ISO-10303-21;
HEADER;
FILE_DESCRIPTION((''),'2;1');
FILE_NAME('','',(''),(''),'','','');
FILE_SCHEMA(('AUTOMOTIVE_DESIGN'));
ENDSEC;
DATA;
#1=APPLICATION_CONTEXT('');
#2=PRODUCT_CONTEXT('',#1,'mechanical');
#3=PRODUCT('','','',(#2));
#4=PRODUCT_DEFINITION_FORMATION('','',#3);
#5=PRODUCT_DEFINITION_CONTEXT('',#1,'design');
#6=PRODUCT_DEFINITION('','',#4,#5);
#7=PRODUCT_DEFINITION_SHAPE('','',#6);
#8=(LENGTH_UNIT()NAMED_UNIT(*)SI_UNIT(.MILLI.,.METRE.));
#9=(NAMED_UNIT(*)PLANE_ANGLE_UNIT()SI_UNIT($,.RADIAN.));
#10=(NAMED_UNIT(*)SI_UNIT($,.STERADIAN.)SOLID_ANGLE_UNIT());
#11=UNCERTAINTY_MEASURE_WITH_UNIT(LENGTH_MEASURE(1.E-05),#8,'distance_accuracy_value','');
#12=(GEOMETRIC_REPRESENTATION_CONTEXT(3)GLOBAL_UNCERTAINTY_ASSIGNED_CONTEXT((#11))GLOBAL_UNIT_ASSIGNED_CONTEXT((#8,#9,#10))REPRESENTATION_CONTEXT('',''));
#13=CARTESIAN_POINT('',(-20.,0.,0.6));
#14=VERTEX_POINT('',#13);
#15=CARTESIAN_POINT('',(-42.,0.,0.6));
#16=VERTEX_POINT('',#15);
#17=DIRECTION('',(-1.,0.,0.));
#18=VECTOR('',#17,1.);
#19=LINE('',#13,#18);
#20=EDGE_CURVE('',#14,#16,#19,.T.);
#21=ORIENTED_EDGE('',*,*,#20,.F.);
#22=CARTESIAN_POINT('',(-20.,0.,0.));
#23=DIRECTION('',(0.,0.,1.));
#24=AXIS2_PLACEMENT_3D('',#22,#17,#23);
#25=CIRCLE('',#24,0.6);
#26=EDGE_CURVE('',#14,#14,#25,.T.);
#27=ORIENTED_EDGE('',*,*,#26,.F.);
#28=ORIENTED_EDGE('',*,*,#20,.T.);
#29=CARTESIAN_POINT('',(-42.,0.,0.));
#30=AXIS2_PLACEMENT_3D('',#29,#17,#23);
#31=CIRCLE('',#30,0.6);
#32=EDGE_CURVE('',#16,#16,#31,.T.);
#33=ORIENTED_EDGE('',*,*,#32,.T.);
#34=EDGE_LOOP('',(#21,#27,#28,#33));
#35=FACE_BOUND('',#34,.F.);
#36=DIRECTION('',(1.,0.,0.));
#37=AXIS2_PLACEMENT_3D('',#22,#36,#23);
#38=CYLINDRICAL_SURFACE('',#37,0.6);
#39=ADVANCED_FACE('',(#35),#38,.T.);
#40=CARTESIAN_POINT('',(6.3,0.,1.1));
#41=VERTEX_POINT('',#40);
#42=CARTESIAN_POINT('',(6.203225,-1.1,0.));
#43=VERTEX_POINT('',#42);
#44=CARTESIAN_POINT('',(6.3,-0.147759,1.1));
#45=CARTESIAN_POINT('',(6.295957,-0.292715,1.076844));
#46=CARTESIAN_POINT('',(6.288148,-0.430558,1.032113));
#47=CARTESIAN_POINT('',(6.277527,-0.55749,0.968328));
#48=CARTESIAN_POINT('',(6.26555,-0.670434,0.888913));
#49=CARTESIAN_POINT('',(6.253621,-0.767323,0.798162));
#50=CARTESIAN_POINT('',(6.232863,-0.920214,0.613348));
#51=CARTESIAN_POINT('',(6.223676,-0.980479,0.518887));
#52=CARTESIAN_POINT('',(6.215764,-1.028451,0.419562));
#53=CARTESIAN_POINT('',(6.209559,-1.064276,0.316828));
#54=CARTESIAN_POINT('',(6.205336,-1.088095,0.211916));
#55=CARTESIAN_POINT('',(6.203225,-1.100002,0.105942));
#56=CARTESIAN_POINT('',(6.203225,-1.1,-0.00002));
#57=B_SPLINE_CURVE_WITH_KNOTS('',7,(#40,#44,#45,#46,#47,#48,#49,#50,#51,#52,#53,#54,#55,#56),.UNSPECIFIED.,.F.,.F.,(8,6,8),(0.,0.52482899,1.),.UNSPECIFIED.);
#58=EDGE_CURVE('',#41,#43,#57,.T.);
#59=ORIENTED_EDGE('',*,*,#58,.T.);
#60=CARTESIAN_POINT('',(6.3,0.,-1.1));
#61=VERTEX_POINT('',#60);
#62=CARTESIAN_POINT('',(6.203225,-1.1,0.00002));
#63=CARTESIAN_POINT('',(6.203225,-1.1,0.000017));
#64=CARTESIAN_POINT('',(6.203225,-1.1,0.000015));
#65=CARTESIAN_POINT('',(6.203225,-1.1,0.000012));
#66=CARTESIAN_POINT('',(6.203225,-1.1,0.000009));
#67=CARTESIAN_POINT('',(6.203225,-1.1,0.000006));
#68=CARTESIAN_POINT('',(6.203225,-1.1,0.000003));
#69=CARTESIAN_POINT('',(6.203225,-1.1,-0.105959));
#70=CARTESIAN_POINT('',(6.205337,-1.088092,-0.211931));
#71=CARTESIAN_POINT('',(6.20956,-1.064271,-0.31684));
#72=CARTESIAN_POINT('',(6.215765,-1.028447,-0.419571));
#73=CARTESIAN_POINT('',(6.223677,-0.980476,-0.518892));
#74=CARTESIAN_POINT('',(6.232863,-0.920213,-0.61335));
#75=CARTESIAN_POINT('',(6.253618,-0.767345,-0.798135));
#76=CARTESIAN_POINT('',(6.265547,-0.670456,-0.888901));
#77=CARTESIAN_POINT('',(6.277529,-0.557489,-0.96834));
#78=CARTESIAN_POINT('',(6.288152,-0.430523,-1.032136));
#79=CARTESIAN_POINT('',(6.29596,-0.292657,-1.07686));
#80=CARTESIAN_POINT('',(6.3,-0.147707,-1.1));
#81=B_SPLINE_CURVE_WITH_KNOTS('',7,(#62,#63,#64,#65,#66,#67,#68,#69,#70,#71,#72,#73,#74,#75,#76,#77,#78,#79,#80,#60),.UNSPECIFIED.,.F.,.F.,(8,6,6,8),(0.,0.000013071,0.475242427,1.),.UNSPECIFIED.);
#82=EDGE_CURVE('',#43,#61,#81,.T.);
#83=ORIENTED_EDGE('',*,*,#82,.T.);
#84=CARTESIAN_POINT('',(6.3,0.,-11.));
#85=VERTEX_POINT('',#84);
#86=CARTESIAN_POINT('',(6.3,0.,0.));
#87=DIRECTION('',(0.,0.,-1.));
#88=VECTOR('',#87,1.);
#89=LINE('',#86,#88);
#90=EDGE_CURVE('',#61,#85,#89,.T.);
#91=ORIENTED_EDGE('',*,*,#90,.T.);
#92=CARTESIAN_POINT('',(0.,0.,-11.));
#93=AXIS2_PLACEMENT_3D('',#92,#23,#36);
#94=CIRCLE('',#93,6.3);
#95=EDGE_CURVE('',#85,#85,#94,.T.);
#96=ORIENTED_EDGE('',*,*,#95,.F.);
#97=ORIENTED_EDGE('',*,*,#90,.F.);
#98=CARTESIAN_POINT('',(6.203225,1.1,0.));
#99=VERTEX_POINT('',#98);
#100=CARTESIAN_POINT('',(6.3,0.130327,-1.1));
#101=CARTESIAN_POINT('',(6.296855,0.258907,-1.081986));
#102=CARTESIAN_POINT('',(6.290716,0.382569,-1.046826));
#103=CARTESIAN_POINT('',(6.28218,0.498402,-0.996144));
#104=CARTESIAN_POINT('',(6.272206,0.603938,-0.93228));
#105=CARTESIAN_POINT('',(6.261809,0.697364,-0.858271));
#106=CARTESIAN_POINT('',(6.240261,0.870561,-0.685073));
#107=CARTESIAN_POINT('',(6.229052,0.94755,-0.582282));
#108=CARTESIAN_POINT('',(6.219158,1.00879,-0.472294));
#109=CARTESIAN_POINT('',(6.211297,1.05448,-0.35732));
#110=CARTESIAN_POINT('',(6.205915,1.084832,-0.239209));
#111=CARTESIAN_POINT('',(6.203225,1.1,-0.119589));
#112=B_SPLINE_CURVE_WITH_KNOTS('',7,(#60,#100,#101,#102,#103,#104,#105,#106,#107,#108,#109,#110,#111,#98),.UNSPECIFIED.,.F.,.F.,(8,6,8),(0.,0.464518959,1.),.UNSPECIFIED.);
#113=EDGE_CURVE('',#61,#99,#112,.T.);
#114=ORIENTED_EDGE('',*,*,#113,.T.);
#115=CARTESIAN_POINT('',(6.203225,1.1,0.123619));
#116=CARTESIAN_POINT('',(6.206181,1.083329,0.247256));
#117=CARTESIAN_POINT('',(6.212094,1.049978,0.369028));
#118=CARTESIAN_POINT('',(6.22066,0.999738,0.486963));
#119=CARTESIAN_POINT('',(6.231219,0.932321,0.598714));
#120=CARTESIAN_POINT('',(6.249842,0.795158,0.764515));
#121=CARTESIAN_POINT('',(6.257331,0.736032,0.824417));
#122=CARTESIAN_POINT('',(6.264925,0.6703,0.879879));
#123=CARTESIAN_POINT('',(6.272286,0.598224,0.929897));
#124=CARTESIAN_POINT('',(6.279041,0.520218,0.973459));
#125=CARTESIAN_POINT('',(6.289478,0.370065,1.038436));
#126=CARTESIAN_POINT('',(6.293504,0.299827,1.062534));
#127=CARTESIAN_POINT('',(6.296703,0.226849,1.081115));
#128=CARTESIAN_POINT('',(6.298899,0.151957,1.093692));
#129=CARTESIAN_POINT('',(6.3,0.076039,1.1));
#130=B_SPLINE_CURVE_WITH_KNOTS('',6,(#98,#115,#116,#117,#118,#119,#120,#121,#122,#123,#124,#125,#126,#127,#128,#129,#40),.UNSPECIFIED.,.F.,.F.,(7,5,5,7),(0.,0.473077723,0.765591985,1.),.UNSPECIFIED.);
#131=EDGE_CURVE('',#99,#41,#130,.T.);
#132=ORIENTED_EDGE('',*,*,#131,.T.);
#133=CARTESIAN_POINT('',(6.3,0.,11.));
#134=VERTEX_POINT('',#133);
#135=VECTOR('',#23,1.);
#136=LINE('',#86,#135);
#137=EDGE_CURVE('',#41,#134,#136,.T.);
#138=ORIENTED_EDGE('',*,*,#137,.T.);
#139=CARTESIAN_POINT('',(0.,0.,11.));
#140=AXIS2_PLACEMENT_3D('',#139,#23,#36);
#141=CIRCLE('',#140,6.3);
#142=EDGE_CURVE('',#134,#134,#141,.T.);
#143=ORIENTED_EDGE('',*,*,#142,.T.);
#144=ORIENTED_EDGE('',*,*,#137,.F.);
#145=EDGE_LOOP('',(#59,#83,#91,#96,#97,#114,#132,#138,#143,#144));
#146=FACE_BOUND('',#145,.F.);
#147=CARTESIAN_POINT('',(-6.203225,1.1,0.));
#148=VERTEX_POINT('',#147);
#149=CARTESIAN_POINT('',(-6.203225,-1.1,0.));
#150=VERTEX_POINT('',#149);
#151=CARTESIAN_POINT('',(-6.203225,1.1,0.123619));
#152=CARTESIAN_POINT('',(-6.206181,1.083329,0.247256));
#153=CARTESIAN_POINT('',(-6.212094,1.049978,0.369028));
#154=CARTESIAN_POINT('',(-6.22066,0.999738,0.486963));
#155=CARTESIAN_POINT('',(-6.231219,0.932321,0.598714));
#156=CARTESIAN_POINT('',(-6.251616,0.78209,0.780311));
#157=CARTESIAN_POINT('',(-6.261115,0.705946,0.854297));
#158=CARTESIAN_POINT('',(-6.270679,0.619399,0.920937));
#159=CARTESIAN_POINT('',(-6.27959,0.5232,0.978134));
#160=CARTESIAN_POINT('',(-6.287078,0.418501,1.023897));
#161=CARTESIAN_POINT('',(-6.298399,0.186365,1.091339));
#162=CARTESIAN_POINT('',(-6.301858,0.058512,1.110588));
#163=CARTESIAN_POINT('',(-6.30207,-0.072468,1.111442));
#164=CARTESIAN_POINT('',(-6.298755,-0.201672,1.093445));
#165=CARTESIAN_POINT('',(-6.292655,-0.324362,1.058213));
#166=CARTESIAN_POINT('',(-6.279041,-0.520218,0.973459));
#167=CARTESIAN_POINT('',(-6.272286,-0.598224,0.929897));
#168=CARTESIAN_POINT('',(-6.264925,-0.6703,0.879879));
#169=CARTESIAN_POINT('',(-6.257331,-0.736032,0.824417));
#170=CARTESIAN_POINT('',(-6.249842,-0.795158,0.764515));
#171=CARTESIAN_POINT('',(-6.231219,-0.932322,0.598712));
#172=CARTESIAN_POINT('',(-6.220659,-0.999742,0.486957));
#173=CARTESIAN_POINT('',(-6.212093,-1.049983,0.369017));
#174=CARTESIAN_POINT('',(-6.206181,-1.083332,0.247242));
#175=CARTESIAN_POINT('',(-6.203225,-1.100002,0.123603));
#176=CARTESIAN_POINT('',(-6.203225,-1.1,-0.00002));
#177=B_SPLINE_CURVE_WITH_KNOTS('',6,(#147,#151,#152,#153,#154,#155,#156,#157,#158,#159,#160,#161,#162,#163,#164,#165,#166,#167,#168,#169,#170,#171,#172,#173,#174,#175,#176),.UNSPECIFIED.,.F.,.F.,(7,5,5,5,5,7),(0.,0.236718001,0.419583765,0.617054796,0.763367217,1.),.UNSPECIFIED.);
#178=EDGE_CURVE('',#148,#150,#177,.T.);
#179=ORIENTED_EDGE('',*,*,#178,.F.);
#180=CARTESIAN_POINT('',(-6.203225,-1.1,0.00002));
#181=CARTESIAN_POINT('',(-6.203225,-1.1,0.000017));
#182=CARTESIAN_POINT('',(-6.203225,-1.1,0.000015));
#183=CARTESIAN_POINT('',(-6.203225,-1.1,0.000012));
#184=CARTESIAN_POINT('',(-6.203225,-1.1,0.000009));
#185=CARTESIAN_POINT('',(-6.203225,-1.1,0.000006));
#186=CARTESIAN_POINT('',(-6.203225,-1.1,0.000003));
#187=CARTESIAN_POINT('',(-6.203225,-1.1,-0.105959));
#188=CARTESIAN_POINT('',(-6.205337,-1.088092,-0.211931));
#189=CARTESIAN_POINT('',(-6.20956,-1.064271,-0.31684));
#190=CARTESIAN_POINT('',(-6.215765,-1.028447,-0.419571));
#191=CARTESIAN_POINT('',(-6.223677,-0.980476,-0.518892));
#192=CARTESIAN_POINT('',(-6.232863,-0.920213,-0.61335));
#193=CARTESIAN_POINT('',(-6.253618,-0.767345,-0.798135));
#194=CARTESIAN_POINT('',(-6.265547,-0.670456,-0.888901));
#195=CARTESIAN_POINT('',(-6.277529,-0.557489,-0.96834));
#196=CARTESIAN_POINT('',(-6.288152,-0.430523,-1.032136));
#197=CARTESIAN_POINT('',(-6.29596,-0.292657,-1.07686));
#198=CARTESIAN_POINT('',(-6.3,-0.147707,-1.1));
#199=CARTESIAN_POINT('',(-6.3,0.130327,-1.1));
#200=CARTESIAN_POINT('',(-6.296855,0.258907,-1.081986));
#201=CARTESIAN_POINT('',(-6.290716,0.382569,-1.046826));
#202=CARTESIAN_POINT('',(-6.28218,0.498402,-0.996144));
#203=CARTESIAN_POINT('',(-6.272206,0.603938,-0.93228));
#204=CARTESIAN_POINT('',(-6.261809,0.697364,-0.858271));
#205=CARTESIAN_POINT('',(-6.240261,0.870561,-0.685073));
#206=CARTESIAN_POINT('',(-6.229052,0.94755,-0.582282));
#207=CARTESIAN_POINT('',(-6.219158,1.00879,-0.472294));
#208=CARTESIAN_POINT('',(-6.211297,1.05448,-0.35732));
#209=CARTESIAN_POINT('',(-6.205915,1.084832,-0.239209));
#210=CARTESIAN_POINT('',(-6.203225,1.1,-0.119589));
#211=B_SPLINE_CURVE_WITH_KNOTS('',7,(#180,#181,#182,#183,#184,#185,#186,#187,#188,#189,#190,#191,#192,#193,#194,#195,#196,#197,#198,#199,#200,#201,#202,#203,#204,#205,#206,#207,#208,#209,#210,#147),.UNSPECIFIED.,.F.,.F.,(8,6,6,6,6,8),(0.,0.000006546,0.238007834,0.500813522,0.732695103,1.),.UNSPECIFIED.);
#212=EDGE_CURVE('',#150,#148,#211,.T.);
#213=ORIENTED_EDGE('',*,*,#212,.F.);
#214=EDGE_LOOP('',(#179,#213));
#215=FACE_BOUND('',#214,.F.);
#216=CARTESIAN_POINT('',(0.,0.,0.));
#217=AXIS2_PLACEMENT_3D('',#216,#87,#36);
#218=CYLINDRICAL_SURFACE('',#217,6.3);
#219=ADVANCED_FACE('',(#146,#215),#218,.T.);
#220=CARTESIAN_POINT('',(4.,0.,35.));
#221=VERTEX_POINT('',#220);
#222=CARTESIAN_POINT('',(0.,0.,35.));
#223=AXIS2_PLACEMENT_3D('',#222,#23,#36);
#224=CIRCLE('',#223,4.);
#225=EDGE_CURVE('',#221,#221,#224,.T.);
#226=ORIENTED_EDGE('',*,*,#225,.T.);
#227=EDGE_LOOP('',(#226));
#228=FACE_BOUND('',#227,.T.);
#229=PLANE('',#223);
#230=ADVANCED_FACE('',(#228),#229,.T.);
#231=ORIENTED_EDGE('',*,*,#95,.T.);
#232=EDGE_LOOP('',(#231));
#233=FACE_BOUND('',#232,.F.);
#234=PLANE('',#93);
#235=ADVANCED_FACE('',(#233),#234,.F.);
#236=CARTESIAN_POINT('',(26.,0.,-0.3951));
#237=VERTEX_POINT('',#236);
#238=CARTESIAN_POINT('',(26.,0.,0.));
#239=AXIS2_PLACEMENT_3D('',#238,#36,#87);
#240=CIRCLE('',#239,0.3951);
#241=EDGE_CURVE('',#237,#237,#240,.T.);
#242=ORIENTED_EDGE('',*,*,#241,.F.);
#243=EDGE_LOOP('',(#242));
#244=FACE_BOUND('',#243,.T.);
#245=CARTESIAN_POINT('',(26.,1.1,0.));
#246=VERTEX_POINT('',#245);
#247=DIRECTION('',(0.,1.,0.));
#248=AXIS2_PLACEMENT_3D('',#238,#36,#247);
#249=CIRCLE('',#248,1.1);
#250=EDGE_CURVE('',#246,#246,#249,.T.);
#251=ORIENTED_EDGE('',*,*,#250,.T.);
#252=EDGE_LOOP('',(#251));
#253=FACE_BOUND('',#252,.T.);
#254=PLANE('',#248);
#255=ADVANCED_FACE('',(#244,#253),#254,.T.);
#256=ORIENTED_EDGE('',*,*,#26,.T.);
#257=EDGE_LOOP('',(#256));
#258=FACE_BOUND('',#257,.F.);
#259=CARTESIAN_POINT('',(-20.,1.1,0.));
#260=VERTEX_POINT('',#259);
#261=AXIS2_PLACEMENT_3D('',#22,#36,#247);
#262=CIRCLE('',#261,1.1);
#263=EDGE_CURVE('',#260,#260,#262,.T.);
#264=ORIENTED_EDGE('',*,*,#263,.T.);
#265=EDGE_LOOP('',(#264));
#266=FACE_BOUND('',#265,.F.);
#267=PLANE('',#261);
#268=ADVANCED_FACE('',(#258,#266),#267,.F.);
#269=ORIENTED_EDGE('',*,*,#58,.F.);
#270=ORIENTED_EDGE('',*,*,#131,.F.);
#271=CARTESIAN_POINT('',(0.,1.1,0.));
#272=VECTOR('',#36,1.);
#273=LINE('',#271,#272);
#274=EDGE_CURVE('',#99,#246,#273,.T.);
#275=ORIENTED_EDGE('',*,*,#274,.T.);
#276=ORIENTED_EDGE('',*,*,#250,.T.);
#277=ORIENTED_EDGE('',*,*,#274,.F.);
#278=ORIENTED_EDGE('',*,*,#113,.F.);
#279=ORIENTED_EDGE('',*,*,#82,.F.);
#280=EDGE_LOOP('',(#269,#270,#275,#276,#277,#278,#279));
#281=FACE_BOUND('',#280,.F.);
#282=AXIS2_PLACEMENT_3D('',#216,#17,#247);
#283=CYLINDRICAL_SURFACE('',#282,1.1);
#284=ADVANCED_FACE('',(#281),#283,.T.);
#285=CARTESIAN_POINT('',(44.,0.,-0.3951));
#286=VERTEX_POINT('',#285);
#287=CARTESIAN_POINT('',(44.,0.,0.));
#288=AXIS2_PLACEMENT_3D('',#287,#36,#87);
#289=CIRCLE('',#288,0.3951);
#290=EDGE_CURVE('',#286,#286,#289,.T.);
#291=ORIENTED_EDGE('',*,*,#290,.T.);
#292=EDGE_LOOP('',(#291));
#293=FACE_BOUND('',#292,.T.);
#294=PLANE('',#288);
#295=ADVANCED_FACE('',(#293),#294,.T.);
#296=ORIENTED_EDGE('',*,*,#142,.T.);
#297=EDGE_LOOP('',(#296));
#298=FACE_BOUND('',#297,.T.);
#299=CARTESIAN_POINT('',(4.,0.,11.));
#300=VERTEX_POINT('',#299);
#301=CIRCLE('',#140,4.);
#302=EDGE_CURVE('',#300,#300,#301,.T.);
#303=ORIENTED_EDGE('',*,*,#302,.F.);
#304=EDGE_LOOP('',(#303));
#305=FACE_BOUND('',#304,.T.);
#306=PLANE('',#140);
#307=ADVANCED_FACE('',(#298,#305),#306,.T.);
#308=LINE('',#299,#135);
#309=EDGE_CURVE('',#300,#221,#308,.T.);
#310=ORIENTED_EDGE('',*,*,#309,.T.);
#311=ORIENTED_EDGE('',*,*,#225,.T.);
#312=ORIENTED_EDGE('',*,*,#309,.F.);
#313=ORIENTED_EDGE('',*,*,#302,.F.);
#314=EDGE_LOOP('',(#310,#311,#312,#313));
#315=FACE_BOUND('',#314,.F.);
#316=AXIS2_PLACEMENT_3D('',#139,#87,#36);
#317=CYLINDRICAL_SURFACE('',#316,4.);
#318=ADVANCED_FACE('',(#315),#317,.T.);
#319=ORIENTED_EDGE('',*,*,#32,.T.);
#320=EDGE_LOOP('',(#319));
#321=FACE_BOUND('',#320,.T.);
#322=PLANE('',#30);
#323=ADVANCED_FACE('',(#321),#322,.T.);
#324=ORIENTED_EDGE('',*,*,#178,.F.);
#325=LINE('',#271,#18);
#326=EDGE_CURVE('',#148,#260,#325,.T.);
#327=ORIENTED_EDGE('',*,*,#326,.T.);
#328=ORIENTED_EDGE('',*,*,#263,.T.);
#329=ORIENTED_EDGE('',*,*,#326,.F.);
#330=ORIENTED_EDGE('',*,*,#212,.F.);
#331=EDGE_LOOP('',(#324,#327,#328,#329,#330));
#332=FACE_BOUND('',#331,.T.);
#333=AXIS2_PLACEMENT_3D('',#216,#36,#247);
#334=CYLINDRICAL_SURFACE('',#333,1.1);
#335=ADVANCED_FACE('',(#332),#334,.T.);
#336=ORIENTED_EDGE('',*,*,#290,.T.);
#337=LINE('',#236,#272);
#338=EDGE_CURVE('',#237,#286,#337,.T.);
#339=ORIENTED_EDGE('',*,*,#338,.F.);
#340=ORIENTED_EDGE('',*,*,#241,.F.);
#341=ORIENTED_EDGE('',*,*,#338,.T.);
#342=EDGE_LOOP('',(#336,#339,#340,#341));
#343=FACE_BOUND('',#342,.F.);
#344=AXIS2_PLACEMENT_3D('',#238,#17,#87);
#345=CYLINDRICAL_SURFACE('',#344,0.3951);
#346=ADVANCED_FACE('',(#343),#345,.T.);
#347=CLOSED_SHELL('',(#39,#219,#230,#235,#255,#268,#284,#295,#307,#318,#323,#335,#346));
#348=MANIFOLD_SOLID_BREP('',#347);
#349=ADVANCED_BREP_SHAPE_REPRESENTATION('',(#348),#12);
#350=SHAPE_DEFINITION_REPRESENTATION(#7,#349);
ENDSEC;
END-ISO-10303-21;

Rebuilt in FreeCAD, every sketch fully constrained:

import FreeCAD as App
import Part
import Sketcher
Q = App.Units.Quantity

doc = App.newDocument("Part")
params = doc.addObject("Spreadsheet::Sheet", "Params")
for row, (alias, value) in enumerate([
    ("sketch1_diameter", "12.6 mm"),
    ("pad1_length", "22 mm"),
    ("sketch2_diameter", "8 mm"),
    ("pad2_length", "24 mm"),
    ("sketch3_diameter", "2.2 mm"),
    ("pad3_length", "26 mm"),
    ("pad3_length2", "20 mm"),
    ("pad4_length", "18 mm"),
    ("sketch5_diameter", "1.2 mm"),
    ("pad5_length", "22 mm"),
], start=1):
    params.set(f"A{row}", alias)
    params.set(f"B{row}", "=" + value)
    params.setAlias(f"B{row}", alias)

body = doc.addObject("PartDesign::Body", "Body")

sketch1 = doc.addObject("Sketcher::SketchObject", "Sketch")
body.addObject(sketch1)
sketch1.AttachmentSupport = (doc.XY_Plane, [""])
sketch1.MapMode = "FlatFace"
sketch1.addGeometry(Part.Circle(App.Vector(0, 0, 0), App.Vector(0, 0, 1), 6), False)
sketch1.addConstraint([
    Sketcher.Constraint("Coincident", 0, 3, -1, 1),
    Sketcher.Constraint("Diameter", 0, Q("12.6 mm")),
])
sketch1.setExpression("Constraints[1]", "Params.sketch1_diameter")
pad1 = doc.addObject("PartDesign::Pad", "Pad")
body.addObject(pad1)
pad1.Profile = sketch1
pad1.setExpression("Length", "Params.pad1_length")
pad1.Midplane = True

sketch2 = doc.addObject("Sketcher::SketchObject", "Sketch001")
body.addObject(sketch2)
sketch2.AttachmentSupport = (doc.XY_Plane, [""])
sketch2.MapMode = "FlatFace"
sketch2.AttachmentOffset = App.Placement(App.Vector(0, 0, 11), App.Rotation())
sketch2.addGeometry(Part.Circle(App.Vector(0, 0, 0), App.Vector(0, 0, 1), 4), False)
sketch2.addConstraint([
    Sketcher.Constraint("Coincident", 0, 3, -1, 1),
    Sketcher.Constraint("Diameter", 0, Q("8 mm")),
])
sketch2.setExpression("Constraints[1]", "Params.sketch2_diameter")
pad2 = doc.addObject("PartDesign::Pad", "Pad001")
body.addObject(pad2)
pad2.Profile = sketch2
pad2.setExpression("Length", "Params.pad2_length")

sketch3 = doc.addObject("Sketcher::SketchObject", "Sketch002")
body.addObject(sketch3)
sketch3.AttachmentSupport = (doc.YZ_Plane, [""])
sketch3.MapMode = "FlatFace"
sketch3.addGeometry(Part.Circle(App.Vector(0, 0, 0), App.Vector(0, 0, 1), 1.1), False)
sketch3.addConstraint([
    Sketcher.Constraint("Coincident", 0, 3, -1, 1),
    Sketcher.Constraint("Diameter", 0, Q("2.2 mm")),
])
sketch3.setExpression("Constraints[1]", "Params.sketch3_diameter")
pad3 = doc.addObject("PartDesign::Pad", "Pad002")
body.addObject(pad3)
pad3.Profile = sketch3
pad3.Type = "TwoLengths"
pad3.setExpression("Length", "Params.pad3_length")
pad3.setExpression("Length2", "Params.pad3_length2")

sketch4 = doc.addObject("Sketcher::SketchObject", "Sketch003")
body.addObject(sketch4)
sketch4.AttachmentSupport = (doc.YZ_Plane, [""])
sketch4.MapMode = "FlatFace"
sketch4.AttachmentOffset = App.Placement(App.Vector(0, 0, 26), App.Rotation())
sketch4.addGeometry(Part.Circle(App.Vector(0, 0, 0), App.Vector(0, 0, 1), 0.4), False)
sketch4.addConstraint([
    Sketcher.Constraint("Coincident", 0, 3, -1, 1),
    Sketcher.Constraint("Diameter", 0, Q("0.7902 mm")),
])
pad4 = doc.addObject("PartDesign::Pad", "Pad003")
body.addObject(pad4)
pad4.Profile = sketch4
pad4.setExpression("Length", "Params.pad4_length")

sketch5 = doc.addObject("Sketcher::SketchObject", "Sketch004")
body.addObject(sketch5)
sketch5.AttachmentSupport = (doc.YZ_Plane, [""])
sketch5.MapMode = "FlatFace"
sketch5.AttachmentOffset = App.Placement(App.Vector(0, 0, -20), App.Rotation())
sketch5.addGeometry(Part.Circle(App.Vector(0, 0, 0), App.Vector(0, 0, 1), 0.6), False)
sketch5.addConstraint([
    Sketcher.Constraint("Coincident", 0, 3, -1, 1),
    Sketcher.Constraint("Diameter", 0, Q("1.2 mm")),
])
sketch5.setExpression("Constraints[1]", "Params.sketch5_diameter")
pad5 = doc.addObject("PartDesign::Pad", "Pad004")
body.addObject(pad5)
pad5.Profile = sketch5
pad5.setExpression("Length", "Params.pad5_length")
pad5.Reversed = True

doc.recompute()
